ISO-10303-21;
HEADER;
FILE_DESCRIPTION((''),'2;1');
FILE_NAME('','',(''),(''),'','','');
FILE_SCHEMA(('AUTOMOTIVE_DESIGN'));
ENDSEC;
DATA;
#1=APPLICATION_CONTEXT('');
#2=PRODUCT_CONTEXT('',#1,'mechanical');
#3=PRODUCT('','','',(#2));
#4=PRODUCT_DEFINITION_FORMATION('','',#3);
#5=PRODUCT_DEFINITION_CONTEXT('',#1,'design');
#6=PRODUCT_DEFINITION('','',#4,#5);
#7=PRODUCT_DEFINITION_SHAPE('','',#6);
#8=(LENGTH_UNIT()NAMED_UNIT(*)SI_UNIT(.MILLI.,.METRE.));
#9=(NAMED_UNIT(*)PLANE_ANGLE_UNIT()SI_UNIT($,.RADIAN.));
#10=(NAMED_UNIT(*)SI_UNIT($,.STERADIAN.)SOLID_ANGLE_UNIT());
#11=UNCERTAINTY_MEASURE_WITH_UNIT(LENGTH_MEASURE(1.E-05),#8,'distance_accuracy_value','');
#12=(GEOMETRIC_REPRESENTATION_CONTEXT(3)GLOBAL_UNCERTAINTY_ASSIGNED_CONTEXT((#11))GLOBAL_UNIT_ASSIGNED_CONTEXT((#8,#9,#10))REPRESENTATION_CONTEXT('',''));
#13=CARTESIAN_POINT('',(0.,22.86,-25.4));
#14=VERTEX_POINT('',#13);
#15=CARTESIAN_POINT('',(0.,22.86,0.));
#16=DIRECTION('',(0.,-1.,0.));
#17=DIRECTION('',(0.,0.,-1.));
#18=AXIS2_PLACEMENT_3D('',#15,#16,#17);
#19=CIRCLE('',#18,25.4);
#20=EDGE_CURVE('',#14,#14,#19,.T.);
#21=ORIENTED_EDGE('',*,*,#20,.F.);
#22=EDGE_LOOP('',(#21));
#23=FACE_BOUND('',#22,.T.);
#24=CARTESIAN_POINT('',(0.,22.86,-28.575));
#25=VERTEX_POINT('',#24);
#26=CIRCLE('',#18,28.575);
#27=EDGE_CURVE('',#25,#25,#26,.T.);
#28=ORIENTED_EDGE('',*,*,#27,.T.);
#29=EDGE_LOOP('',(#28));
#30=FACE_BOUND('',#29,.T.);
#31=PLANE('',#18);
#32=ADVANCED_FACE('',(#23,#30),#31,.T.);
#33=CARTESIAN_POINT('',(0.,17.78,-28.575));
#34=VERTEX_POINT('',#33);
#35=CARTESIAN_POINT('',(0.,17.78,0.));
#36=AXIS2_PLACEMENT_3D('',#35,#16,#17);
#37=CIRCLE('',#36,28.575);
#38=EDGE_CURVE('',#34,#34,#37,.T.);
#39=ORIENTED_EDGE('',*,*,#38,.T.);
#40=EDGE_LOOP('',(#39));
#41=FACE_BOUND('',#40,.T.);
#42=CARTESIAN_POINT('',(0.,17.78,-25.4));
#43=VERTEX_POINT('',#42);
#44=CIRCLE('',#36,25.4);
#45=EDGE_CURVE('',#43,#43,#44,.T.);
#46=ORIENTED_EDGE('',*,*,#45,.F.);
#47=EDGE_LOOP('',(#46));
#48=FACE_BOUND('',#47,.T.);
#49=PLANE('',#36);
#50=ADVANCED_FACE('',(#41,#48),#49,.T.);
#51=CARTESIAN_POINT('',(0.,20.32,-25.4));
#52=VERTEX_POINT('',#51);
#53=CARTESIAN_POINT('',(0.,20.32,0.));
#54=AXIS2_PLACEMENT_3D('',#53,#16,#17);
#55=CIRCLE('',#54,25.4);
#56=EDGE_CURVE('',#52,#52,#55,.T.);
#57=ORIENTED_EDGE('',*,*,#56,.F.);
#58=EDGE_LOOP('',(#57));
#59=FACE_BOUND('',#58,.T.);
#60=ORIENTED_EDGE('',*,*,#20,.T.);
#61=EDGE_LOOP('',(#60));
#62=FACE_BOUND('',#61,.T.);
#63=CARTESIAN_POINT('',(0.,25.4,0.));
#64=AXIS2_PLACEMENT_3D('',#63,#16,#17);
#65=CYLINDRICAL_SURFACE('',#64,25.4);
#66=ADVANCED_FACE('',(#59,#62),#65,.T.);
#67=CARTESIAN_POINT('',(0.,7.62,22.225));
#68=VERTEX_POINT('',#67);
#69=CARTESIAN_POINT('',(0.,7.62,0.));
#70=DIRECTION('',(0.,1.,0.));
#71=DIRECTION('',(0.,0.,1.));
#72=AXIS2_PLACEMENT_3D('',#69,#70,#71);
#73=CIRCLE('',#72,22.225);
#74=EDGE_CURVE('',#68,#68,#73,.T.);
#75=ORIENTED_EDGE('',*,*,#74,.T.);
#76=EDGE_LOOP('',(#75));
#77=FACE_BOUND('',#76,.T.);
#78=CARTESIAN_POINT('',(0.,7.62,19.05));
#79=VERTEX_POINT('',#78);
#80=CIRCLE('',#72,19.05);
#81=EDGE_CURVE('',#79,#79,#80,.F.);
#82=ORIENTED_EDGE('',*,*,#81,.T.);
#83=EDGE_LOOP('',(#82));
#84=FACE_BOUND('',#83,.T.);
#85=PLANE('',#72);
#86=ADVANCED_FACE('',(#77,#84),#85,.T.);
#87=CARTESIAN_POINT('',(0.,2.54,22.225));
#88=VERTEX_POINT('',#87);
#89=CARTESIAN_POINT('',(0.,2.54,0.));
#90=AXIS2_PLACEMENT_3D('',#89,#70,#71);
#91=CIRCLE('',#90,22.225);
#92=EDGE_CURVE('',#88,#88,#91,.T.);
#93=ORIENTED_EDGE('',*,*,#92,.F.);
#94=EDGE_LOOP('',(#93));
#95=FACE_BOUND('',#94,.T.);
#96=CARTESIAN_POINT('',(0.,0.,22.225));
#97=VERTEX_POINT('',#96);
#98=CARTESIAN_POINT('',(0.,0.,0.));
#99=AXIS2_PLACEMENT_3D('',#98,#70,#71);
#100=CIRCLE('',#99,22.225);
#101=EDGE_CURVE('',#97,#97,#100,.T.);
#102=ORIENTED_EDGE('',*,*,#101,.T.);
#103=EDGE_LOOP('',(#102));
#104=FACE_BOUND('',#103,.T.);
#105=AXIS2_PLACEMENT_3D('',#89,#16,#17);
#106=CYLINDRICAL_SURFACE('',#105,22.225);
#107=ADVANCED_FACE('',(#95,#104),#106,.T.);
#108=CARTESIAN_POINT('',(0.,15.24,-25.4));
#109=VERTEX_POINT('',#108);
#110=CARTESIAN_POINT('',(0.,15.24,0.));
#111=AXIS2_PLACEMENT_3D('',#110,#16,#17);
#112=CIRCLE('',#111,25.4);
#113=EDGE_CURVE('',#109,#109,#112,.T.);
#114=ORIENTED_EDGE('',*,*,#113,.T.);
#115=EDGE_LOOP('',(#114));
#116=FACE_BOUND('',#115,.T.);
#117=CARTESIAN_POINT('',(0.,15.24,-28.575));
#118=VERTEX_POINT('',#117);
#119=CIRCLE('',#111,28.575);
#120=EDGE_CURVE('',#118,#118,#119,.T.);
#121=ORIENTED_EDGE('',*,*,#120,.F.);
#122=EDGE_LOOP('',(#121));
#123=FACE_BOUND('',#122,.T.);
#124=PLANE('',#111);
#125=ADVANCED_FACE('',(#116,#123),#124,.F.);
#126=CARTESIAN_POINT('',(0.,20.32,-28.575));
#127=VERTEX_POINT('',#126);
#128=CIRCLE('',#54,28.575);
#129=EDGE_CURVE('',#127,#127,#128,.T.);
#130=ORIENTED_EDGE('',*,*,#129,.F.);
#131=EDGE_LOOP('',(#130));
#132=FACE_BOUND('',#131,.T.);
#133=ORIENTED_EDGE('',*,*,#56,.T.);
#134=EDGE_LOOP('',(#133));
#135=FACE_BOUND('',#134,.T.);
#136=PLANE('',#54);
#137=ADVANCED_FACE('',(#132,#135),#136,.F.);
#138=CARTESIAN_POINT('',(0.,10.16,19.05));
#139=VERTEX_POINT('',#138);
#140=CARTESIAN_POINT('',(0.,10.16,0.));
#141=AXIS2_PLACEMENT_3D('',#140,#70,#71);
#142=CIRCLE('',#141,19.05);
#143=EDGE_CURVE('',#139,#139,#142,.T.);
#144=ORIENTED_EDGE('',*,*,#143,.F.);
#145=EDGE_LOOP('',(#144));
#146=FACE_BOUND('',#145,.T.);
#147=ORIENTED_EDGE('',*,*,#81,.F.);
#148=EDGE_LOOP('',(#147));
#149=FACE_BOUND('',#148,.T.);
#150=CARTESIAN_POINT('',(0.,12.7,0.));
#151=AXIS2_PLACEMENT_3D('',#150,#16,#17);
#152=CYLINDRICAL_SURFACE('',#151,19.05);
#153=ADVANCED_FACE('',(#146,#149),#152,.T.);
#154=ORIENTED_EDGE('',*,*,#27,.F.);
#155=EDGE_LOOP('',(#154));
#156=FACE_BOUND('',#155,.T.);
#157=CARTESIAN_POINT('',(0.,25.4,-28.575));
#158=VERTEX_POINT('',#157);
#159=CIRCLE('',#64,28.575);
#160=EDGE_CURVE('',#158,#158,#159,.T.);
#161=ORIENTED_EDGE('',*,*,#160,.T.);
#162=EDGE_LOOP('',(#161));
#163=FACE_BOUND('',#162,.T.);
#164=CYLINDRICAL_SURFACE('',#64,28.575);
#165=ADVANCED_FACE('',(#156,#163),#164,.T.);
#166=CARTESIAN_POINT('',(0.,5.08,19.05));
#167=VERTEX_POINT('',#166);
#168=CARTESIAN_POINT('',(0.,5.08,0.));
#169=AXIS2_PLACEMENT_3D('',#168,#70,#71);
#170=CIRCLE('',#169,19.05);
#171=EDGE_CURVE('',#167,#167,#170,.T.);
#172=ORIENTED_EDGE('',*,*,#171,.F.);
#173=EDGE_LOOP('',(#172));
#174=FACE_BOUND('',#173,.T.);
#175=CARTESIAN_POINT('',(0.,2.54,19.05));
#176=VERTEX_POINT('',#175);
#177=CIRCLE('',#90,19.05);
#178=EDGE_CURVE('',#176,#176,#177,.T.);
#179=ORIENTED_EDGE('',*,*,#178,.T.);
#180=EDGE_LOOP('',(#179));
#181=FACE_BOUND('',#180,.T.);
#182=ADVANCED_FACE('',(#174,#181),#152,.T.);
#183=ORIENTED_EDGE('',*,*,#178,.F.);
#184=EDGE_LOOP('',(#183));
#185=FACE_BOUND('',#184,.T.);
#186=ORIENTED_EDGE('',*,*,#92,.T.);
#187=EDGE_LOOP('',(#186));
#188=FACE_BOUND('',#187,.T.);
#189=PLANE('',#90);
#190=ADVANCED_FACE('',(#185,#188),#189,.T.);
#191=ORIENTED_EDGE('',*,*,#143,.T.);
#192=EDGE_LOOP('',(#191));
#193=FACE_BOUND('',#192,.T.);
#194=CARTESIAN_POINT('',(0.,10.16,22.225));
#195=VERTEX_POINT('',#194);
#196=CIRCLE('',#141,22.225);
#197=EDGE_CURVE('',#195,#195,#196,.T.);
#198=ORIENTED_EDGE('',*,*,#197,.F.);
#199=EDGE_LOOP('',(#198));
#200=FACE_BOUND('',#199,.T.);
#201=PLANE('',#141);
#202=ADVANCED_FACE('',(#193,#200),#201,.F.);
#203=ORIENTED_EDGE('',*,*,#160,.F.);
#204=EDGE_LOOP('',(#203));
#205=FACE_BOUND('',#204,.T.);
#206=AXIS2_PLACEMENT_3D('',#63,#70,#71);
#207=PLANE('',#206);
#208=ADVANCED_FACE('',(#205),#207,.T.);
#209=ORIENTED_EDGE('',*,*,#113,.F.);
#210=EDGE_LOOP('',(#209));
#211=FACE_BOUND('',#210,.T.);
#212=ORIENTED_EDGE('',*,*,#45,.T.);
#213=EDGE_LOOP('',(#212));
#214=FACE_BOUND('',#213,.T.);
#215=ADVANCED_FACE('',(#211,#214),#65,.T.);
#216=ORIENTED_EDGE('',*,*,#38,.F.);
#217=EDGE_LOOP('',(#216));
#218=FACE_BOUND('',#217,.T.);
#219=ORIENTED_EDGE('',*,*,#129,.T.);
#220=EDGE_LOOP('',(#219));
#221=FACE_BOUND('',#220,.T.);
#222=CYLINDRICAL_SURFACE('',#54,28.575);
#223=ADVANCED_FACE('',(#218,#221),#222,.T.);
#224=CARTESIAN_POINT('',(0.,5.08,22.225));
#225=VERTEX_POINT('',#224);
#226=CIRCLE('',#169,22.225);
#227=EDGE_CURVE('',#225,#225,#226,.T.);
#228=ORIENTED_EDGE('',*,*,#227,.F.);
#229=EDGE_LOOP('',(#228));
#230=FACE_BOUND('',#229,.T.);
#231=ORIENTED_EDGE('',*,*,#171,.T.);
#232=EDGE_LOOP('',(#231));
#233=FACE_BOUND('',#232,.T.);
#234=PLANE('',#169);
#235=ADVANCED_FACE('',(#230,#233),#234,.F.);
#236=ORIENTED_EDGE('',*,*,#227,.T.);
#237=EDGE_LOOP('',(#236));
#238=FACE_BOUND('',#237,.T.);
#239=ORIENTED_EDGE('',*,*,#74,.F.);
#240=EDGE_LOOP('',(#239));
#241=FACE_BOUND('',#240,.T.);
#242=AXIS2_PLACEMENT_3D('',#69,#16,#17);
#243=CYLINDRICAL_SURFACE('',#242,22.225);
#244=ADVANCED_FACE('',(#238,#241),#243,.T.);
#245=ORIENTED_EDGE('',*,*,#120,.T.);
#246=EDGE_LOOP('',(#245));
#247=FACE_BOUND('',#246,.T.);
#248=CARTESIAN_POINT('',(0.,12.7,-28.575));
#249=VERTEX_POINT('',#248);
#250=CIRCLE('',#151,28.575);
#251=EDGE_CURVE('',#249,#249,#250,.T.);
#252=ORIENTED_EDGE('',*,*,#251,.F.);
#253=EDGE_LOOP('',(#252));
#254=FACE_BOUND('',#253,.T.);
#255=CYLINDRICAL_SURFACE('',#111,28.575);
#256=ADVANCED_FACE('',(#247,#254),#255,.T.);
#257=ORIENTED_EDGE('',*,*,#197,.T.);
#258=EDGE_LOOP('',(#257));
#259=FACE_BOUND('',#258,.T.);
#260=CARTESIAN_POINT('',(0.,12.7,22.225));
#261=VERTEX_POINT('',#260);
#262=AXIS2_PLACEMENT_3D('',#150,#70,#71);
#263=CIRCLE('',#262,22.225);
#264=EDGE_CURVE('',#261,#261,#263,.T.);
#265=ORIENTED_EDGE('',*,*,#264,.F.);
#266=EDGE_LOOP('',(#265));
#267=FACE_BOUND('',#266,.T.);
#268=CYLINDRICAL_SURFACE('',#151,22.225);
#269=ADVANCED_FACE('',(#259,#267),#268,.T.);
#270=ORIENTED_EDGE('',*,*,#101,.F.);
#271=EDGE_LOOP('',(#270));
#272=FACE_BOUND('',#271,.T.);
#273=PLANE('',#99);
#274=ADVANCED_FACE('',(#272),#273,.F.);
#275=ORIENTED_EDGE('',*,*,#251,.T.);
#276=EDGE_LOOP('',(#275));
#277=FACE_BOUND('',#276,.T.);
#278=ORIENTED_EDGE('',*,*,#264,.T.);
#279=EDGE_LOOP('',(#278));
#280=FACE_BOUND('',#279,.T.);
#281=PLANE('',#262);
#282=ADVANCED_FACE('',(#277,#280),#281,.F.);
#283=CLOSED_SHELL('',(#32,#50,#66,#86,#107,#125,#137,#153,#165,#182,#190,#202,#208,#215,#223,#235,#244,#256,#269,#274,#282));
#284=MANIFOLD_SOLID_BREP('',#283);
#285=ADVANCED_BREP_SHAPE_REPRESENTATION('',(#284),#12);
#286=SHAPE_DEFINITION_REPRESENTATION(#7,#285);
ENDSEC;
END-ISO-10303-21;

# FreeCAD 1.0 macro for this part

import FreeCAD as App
import Part
import Sketcher
from FreeCAD import Vector
Q = App.Units.Quantity

doc = App.newDocument("Part")
body = doc.addObject("PartDesign::Body", "Body")

# Sketch on XZ plane
sketch1 = body.newObject("Sketcher::SketchObject", "Sketch")
sketch1.AttachmentSupport = (doc.getObject("XZ_Plane"), [""])
sketch1.MapMode = "FlatFace"
sketch1.addGeometry([
    Part.Circle(Vector(0, 0, 0), Vector(0, 0, 1), 22),
    Part.Circle(Vector(0, 0, 0), Vector(0, 0, 1), 19),
], False)
sketch1.addConstraint([
    Sketcher.Constraint("Coincident", 0, 3, -1, 1),
    Sketcher.Constraint("Coincident", 1, 3, -1, 1),
    Sketcher.Constraint("Diameter", 1, Q("1.5 in")),
    Sketcher.Constraint("Diameter", 0, Q("1.75 in")),
])
pad1 = body.newObject("PartDesign::Pad", "Pad")
pad1.Profile = sketch1
pad1.Length = Q("0.1 in")
pad1.Reversed = True

# Sketch on XZ plane
sketch2 = body.newObject("Sketcher::SketchObject", "Sketch001")
sketch2.AttachmentSupport = (doc.getObject("XZ_Plane"), [""])
sketch2.MapMode = "FlatFace"
sketch2.addGeometry(Part.Circle(Vector(0, 0, 0), Vector(0, 0, 1), 19), False)
sketch2.addConstraint([
    Sketcher.Constraint("Coincident", 0, 3, -1, 1),
    Sketcher.Constraint("Diameter", 0, Q("1.5 in")),
])
pad2 = body.newObject("PartDesign::Pad", "Pad001")
pad2.Profile = sketch2
pad2.Length = Q("0.5 in")
pad2.Reversed = True
doc.recompute()

linearpattern = body.newObject("PartDesign::LinearPattern", "LinearPattern")
linearpattern.Originals = [pad1]
linearpattern.Direction = (doc.getObject("Y_Axis"), [""])
linearpattern.Mode = "offset"
linearpattern.Offset = Q("0.2 in")
linearpattern.Occurrences = 3
body.Tip = linearpattern

# Sketch on XZ plane
sketch3 = body.newObject("Sketcher::SketchObject", "Sketch002")
sketch3.AttachmentSupport = (doc.getObject("XZ_Plane"), [""])
sketch3.MapMode = "FlatFace"
sketch3.AttachmentOffset = App.Placement(Vector(0, 0, -0.5 * 25.4), App.Rotation())
sketch3.addGeometry(Part.Circle(Vector(0, 0, 0), Vector(0, 0, 1), 25), False)
sketch3.addConstraint([
    Sketcher.Constraint("Coincident", 0, 3, -1, 1),
    Sketcher.Constraint("Diameter", 0, Q("2 in")),
])
pad3 = body.newObject("PartDesign::Pad", "Pad002")
pad3.Profile = sketch3
pad3.Length = Q("0.5 in")
pad3.Reversed = True

# Sketch on XZ plane
sketch4 = body.newObject("Sketcher::SketchObject", "Sketch003")
sketch4.AttachmentSupport = (doc.getObject("XZ_Plane"), [""])
sketch4.MapMode = "FlatFace"
sketch4.AttachmentOffset = App.Placement(Vector(0, 0, -0.5 * 25.4), App.Rotation())
sketch4.addGeometry(Part.Circle(Vector(0, 0, 0), Vector(0, 0, 1), 29), False)
sketch4.addConstraint([
    Sketcher.Constraint("Coincident", 0, 3, -1, 1),
    Sketcher.Constraint("Diameter", 0, Q("2.25 in")),
])
pad4 = body.newObject("PartDesign::Pad", "Pad003")
pad4.Profile = sketch4
pad4.Length = Q("0.1 in")
pad4.Reversed = True
doc.recompute()

linearpattern2 = body.newObject("PartDesign::LinearPattern", "LinearPattern001")
linearpattern2.Originals = [pad4]
linearpattern2.Direction = (doc.getObject("Y_Axis"), [""])
linearpattern2.Mode = "offset"
linearpattern2.Offset = Q("0.2 in")
linearpattern2.Occurrences = 3
body.Tip = linearpattern2

doc.recompute()
